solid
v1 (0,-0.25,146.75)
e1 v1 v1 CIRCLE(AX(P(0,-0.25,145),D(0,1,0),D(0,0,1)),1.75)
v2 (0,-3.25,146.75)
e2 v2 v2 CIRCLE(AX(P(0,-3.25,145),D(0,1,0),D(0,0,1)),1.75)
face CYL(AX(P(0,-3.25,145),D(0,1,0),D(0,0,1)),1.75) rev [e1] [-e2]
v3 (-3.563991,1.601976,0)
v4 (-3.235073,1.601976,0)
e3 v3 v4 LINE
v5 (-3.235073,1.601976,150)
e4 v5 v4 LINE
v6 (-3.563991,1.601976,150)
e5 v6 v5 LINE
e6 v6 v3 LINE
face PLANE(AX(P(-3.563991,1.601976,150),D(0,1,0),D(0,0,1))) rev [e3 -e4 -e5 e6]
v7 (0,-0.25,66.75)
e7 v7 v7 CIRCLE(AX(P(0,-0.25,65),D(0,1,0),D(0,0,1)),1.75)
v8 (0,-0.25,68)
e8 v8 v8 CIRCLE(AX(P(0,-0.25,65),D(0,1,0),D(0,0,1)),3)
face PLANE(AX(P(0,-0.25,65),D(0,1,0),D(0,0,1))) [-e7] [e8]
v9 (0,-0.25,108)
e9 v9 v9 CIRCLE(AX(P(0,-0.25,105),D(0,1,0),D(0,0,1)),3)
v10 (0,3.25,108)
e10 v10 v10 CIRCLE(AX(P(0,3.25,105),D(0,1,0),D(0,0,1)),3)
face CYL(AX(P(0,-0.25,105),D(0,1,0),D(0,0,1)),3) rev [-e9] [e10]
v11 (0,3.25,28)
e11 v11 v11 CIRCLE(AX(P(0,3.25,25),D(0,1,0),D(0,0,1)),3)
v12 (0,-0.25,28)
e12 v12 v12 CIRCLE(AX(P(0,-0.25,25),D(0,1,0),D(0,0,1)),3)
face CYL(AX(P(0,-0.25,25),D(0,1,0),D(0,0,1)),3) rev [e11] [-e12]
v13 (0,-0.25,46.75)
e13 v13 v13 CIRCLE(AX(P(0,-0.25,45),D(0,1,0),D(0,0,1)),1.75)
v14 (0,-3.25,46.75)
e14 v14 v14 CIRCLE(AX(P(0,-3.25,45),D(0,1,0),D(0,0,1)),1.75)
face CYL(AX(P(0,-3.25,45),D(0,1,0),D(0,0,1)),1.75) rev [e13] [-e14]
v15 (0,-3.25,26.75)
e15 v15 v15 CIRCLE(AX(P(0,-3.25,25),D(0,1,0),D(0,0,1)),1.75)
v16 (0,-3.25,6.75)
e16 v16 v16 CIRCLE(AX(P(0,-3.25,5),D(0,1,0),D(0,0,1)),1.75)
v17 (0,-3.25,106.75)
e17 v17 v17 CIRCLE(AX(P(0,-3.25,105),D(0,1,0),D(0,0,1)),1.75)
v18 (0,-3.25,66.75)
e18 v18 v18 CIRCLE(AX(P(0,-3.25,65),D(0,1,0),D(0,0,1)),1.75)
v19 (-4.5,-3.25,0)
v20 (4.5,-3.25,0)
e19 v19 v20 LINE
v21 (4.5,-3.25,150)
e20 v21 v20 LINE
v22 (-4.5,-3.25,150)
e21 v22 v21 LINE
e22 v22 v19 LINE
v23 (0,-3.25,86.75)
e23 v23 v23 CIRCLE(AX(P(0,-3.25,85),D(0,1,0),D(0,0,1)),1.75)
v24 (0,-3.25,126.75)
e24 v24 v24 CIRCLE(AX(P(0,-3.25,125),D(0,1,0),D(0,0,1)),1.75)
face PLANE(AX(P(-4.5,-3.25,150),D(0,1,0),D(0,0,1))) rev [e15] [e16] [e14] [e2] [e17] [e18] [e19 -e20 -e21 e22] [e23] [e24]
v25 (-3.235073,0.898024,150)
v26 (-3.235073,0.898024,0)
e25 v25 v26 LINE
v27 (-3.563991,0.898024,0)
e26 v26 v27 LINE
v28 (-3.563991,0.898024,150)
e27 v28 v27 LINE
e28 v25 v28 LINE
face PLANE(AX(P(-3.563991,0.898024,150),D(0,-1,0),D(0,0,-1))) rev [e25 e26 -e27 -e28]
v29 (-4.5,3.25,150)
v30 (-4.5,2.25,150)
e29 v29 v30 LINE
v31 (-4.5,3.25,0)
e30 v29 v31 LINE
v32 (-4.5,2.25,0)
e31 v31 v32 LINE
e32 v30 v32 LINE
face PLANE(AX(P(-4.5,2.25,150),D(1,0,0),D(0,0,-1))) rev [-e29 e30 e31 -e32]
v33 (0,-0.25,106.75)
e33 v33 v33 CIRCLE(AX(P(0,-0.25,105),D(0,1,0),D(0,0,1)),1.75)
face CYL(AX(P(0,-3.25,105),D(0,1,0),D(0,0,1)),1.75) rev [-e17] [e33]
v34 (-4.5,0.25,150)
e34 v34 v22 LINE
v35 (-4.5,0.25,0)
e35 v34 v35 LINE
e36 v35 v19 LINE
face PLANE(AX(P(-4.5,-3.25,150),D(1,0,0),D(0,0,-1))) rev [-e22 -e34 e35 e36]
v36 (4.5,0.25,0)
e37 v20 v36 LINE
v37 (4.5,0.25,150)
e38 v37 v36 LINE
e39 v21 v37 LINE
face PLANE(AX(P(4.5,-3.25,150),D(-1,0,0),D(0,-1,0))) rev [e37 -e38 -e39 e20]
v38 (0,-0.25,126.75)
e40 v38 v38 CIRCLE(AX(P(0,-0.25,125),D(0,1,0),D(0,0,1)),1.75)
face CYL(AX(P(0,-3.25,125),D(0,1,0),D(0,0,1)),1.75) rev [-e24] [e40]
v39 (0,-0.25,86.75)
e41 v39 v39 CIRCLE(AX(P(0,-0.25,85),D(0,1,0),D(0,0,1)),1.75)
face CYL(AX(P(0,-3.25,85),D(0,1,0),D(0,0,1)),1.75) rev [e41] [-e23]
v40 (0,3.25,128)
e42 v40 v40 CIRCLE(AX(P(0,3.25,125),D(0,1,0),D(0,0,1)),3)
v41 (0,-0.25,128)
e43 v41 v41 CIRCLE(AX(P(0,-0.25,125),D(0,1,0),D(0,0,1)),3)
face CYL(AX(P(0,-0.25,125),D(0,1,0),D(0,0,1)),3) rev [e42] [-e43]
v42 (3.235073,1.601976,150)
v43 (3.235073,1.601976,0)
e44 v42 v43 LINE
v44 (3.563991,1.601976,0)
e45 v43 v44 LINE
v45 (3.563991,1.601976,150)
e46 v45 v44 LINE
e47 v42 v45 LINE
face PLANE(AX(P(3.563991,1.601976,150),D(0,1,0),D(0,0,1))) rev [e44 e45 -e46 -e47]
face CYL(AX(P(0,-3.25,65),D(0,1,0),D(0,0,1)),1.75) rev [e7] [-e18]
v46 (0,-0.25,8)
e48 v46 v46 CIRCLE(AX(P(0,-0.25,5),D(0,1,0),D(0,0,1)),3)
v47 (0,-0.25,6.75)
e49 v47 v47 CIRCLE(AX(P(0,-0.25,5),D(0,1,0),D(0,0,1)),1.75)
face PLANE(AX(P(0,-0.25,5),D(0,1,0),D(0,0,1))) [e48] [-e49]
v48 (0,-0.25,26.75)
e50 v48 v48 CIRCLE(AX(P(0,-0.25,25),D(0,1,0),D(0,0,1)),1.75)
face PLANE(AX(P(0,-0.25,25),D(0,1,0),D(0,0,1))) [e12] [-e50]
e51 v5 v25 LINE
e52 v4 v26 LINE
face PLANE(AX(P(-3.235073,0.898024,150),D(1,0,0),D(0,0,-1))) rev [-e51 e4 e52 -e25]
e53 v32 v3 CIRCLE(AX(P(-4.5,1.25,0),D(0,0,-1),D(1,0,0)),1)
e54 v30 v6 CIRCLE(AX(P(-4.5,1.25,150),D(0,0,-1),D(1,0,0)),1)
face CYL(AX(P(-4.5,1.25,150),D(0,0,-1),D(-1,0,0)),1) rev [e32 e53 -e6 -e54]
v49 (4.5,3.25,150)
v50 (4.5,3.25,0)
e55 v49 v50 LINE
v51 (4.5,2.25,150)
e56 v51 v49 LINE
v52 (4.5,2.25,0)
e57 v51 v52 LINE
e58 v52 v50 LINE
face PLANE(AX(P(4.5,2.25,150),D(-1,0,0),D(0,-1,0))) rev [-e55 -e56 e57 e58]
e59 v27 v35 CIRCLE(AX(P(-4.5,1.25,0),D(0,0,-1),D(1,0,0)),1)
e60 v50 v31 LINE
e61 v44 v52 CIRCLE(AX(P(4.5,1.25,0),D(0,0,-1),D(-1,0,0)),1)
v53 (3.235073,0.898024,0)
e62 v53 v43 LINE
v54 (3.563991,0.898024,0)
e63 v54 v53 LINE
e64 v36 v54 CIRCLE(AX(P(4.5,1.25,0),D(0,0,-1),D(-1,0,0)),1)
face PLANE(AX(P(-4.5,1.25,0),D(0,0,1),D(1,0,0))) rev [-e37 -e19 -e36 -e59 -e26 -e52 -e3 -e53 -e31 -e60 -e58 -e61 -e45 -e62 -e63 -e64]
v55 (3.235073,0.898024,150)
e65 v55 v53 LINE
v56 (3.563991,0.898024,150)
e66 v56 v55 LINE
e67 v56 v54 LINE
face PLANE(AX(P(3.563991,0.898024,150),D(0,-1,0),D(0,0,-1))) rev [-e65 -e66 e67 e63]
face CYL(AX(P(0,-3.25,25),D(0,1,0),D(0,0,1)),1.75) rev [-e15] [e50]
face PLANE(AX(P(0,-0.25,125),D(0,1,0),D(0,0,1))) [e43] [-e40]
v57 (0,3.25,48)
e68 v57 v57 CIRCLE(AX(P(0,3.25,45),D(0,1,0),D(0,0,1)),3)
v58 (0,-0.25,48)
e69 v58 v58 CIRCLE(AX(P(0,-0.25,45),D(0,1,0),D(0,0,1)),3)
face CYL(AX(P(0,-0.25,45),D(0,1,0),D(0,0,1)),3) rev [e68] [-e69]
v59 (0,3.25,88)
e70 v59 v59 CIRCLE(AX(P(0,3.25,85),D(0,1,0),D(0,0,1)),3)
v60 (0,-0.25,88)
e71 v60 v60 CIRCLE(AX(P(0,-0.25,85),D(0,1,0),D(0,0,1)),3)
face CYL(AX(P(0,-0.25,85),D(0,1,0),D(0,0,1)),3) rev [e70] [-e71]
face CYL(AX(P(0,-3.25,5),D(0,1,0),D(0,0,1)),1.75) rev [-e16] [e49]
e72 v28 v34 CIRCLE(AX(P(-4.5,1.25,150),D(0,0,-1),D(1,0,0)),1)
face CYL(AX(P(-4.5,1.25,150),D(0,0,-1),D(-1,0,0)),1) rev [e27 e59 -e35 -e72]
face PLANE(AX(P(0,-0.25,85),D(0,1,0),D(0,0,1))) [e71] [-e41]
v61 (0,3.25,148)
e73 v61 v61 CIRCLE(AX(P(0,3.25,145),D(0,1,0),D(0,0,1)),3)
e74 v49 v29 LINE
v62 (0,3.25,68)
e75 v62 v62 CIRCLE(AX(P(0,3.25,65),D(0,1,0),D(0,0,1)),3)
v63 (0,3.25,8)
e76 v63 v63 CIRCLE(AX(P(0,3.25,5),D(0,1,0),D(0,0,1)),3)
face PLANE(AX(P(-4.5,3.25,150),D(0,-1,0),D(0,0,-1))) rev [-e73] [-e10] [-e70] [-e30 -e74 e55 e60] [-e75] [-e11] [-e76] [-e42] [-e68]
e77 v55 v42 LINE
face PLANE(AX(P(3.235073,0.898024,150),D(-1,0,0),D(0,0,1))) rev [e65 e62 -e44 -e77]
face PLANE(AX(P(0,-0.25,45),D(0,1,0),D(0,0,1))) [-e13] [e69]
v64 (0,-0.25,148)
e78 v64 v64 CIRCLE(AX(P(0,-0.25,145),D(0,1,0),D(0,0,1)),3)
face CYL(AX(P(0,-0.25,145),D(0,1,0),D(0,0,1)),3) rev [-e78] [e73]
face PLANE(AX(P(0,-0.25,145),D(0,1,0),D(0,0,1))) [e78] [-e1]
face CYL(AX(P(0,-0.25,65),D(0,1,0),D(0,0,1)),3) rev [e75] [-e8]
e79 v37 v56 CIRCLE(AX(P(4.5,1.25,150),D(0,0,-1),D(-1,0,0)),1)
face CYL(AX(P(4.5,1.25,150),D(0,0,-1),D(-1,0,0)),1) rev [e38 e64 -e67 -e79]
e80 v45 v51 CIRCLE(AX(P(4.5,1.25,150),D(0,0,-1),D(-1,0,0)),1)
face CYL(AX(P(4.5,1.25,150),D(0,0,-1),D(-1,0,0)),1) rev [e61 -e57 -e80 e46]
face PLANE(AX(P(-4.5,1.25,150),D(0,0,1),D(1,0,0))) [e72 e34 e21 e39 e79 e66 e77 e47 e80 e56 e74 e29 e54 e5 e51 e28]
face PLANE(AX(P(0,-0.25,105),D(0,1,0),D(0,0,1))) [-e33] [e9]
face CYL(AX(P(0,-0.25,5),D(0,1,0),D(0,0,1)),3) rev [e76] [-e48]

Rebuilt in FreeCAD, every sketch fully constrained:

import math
import FreeCAD as App
import Part
import Sketcher

V = App.Vector
Q = App.Units.Quantity

doc = App.newDocument("Part")
params = doc.addObject("Spreadsheet::Sheet", "Params")
for row, (alias, value) in enumerate([
    ("sketch1_radius", "1 mm"),
    ("sketch1_width", "9 mm"),
    ("sketch1_height", "1 mm"),
    ("sketch1_height2", "3.5 mm"),
    ("pad1_length", "150 mm"),
    ("sketch2_diameter", "6 mm"),
    ("pocket1_length", "3.5 mm"),
    ("sketch3_diameter", "3.5 mm"),
    ("linearpattern_pitch", "20 mm"),
], start=1):
    params.set(f"A{row}", alias)
    params.set(f"B{row}", "=" + value)
    params.setAlias(f"B{row}", alias)

body = doc.addObject("PartDesign::Body", "Body")

# Sketch on XY plane
sketch1 = body.newObject("Sketcher::SketchObject", "Sketch")
sketch1.AttachmentSupport = (doc.getObject("XY_Plane"), [""])
sketch1.MapMode = "FlatFace"
sketch1.addGeometry([
    Part.LineSegment(V(-4.5, -3.25, 0), V(4.5, -3.25, 0)),  # 0
    Part.LineSegment(V(4.5, -3.25, 0), V(4.5, 0.25, 0)),  # 1
    Part.ArcOfCircle(Part.Circle(V(4.5, 1.25, 0), V(0, 0, 1), 1), math.radians(-159), math.radians(-90)),  # 2
    Part.LineSegment(V(3.56, 0.9, 0), V(3.24, 0.9, 0)),  # 3
    Part.LineSegment(V(3.24, 0.9, 0), V(3.24, 1.6, 0)),  # 4
    Part.LineSegment(V(3.24, 1.6, 0), V(3.56, 1.6, 0)),  # 5
    Part.ArcOfCircle(Part.Circle(V(4.5, 1.25, 0), V(0, 0, 1), 1), math.radians(90), math.radians(159)),  # 6
    Part.LineSegment(V(4.5, 2.25, 0), V(4.5, 3.25, 0)),  # 7
    Part.LineSegment(V(4.5, 3.25, 0), V(-4.5, 3.25, 0)),  # 8
    Part.LineSegment(V(-4.5, 3.25, 0), V(-4.5, 2.25, 0)),  # 9
    Part.ArcOfCircle(Part.Circle(V(-4.5, 1.25, 0), V(0, 0, 1), 1), math.radians(21), math.radians(90)),  # 10
    Part.LineSegment(V(-3.56, 1.6, 0), V(-3.24, 1.6, 0)),  # 11
    Part.LineSegment(V(-3.24, 1.6, 0), V(-3.24, 0.9, 0)),  # 12
    Part.LineSegment(V(-3.24, 0.9, 0), V(-3.56, 0.9, 0)),  # 13
    Part.ArcOfCircle(Part.Circle(V(-4.5, 1.25, 0), V(0, 0, 1), 1), math.radians(-90), math.radians(-21)),  # 14
    Part.LineSegment(V(-4.5, 0.25, 0), V(-4.5, -3.25, 0)),  # 15
], False)
sketch1.addConstraint([
    Sketcher.Constraint("Coincident", 0, 2, 1, 1),
    Sketcher.Constraint("Coincident", 1, 2, 2, 2),
    Sketcher.Constraint("Coincident", 2, 1, 3, 1),
    Sketcher.Constraint("Coincident", 3, 2, 4, 1),
    Sketcher.Constraint("Coincident", 4, 2, 5, 1),
    Sketcher.Constraint("Coincident", 5, 2, 6, 2),
    Sketcher.Constraint("Coincident", 6, 1, 7, 1),
    Sketcher.Constraint("Coincident", 7, 2, 8, 1),
    Sketcher.Constraint("Coincident", 8, 2, 9, 1),
    Sketcher.Constraint("Coincident", 9, 2, 10, 2),
    Sketcher.Constraint("Coincident", 10, 1, 11, 1),
    Sketcher.Constraint("Coincident", 11, 2, 12, 1),
    Sketcher.Constraint("Coincident", 12, 2, 13, 1),
    Sketcher.Constraint("Coincident", 13, 2, 14, 2),
    Sketcher.Constraint("Coincident", 14, 1, 15, 1),
    Sketcher.Constraint("Coincident", 15, 2, 0, 1),
    Sketcher.Constraint("Horizontal", 0),
    Sketcher.Constraint("Vertical", 1),
    Sketcher.Constraint("Horizontal", 3),
    Sketcher.Constraint("Vertical", 4),
    Sketcher.Constraint("Horizontal", 5),
    Sketcher.Constraint("Vertical", 7),
    Sketcher.Constraint("Horizontal", 8),
    Sketcher.Constraint("Vertical", 9),
    Sketcher.Constraint("Horizontal", 11),
    Sketcher.Constraint("Vertical", 12),
    Sketcher.Constraint("Horizontal", 13),
    Sketcher.Constraint("Vertical", 15),
    Sketcher.Constraint("Coincident", 6, 3, 2, 3),
    Sketcher.Constraint("Coincident", 14, 3, 10, 3),
    Sketcher.Constraint("Equal", 2, 6),
    Sketcher.Constraint("Equal", 6, 10),
    Sketcher.Constraint("Equal", 10, 14),
    Sketcher.Constraint("Symmetric", 0, 2, 8, 2, -1, 1),
    Sketcher.Constraint("Symmetric", 2, 3, 10, 3, -2),
    Sketcher.Constraint("Symmetric", 4, 2, 11, 2, -2),
    Sketcher.Constraint("Horizontal", 3, 2, 12, 2),
    Sketcher.Constraint("Vertical", 6, 3, 0, 2),
    Sketcher.Constraint("Vertical", 2, 1, 5, 2),
    Sketcher.Constraint("Vertical", 1, 2, 6, 1),
    Sketcher.Constraint("Vertical", 9, 2, 14, 1),
    Sketcher.Constraint("Radius", 2, Q("1 mm")),
    Sketcher.Constraint("DistanceX", 0, 1, 0, 2, Q("9 mm")),
    Sketcher.Constraint("DistanceY", 7, 1, 7, 2, Q("1 mm")),
    Sketcher.Constraint("DistanceY", 1, 1, 1, 2, Q("3.5 mm")),
    Sketcher.Constraint("DistanceX", 3, 2, 3, 1, Q("0.328918 mm")),
    Sketcher.Constraint("DistanceY", 4, 1, 4, 2, Q("0.703953 mm")),
])
sketch1.setExpression("Constraints[41]", "Params.sketch1_radius")
sketch1.setExpression("Constraints[42]", "Params.sketch1_width")
sketch1.setExpression("Constraints[43]", "Params.sketch1_height")
sketch1.setExpression("Constraints[44]", "Params.sketch1_height2")
pad1 = body.newObject("PartDesign::Pad", "Pad")
pad1.Profile = sketch1
pad1.setExpression("Length", "Params.pad1_length")

# Sketch on XZ plane
sketch2 = body.newObject("Sketcher::SketchObject", "Sketch001")
sketch2.AttachmentSupport = (doc.getObject("XZ_Plane"), [""])
sketch2.MapMode = "FlatFace"
sketch2.AttachmentOffset = App.Placement(V(0, 0, -3.25), App.Rotation())
sketch2.addGeometry(Part.Circle(V(0, 5, 0), V(0, 0, 1), 3), False)
sketch2.addConstraint([
    Sketcher.Constraint("PointOnObject", 0, 3, -2),
    Sketcher.Constraint("Diameter", 0, Q("6 mm")),
    Sketcher.Constraint("DistanceY", -1, 1, 0, 3, Q("5 mm")),
])
sketch2.setExpression("Constraints[1]", "Params.sketch2_diameter")
pocket1 = body.newObject("PartDesign::Pocket", "Pocket")
pocket1.Profile = sketch2
pocket1.setExpression("Length", "Params.pocket1_length")
pocket1.Reversed = True

# Sketch on XZ plane
sketch3 = body.newObject("Sketcher::SketchObject", "Sketch002")
sketch3.AttachmentSupport = (doc.getObject("XZ_Plane"), [""])
sketch3.MapMode = "FlatFace"
sketch3.AttachmentOffset = App.Placement(V(0, 0, -3.25), App.Rotation())
sketch3.addGeometry(Part.Circle(V(0, 5, 0), V(0, 0, 1), 1.8), False)
sketch3.addConstraint([
    Sketcher.Constraint("PointOnObject", 0, 3, -2),
    Sketcher.Constraint("Diameter", 0, Q("3.5 mm")),
    Sketcher.Constraint("DistanceY", -1, 1, 0, 3, Q("5 mm")),
])
sketch3.setExpression("Constraints[1]", "Params.sketch3_diameter")
pocket2 = body.newObject("PartDesign::Pocket", "Pocket001")
pocket2.Profile = sketch3
pocket2.Type = "ThroughAll"
pocket2.Reversed = True
doc.recompute()

linearpattern = body.newObject("PartDesign::LinearPattern", "LinearPattern")
linearpattern.Originals = [pocket1, pocket2]
linearpattern.Direction = (doc.getObject("Z_Axis"), [""])
linearpattern.Mode = "offset"
linearpattern.setExpression("Offset", "Params.linearpattern_pitch")
linearpattern.Occurrences = 13
body.Tip = linearpattern

doc.recompute()
